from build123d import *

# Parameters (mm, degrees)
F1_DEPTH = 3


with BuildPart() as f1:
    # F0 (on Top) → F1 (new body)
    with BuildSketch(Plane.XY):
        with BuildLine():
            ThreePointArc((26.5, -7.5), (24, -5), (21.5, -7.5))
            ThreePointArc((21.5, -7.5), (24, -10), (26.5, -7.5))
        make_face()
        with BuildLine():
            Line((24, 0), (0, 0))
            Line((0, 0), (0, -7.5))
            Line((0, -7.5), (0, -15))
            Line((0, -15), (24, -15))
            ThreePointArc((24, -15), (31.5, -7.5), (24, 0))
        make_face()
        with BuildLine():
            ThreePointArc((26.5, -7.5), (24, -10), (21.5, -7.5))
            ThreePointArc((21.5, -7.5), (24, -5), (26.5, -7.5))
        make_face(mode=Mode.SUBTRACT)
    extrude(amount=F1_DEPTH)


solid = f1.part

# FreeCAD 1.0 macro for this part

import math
import FreeCAD as App
import Part
import Sketcher
Q = App.Units.Quantity

doc = App.newDocument("Part")
params = doc.addObject("Spreadsheet::Sheet", "Params")
for row, (alias, value) in enumerate([
    ("sketch1_diameter", "5 mm"),
    ("sketch1_radius", "7.5 mm"),
    ("sketch1_width", "24 mm"),
    ("pad1_length", "3 mm"),
], start=1):
    params.set(f"A{row}", alias)
    params.set(f"B{row}", "=" + value)
    params.setAlias(f"B{row}", alias)

body = doc.addObject("PartDesign::Body", "Body")

# Sketch on XY plane
sketch1 = body.newObject("Sketcher::SketchObject", "Sketch")
sketch1.AttachmentSupport = (doc.getObject("XY_Plane"), [""])
sketch1.MapMode = "FlatFace"
sketch1.addGeometry(Part.LineSegment(App.Vector(24, 0, 0), App.Vector(0, 0, 0)), False)
sketch1.addGeometry(Part.LineSegment(App.Vector(0, 0, 0), App.Vector(0, -15, 0)), False)
sketch1.addGeometry(Part.LineSegment(App.Vector(0, -15, 0), App.Vector(24, -15, 0)), False)
sketch1.addGeometry(Part.ArcOfCircle(Part.Circle(App.Vector(24, -7.5, 0), App.Vector(0, 0, 1), 7.5), math.radians(-90), math.radians(90)), False)
sketch1.addGeometry(Part.Circle(App.Vector(24, -7.5, 0), App.Vector(0, 0, 1), 2.5), False)
sketch1.addConstraint(Sketcher.Constraint("Coincident", 0, 2, 1, 1))
sketch1.addConstraint(Sketcher.Constraint("Coincident", 1, 2, 2, 1))
sketch1.addConstraint(Sketcher.Constraint("Tangent", 2, 2, 3, 1))
sketch1.addConstraint(Sketcher.Constraint("Tangent", 3, 2, 0, 1))
sketch1.addConstraint(Sketcher.Constraint("Horizontal", 0))
sketch1.addConstraint(Sketcher.Constraint("Vertical", 1))
sketch1.addConstraint(Sketcher.Constraint("Horizontal", 2))
sketch1.addConstraint(Sketcher.Constraint("Coincident", 0, 2, -1, 1))
sketch1.addConstraint(Sketcher.Constraint("Coincident", 4, 3, 3, 3))
sketch1.addConstraint(Sketcher.Constraint("Diameter", 4, Q("5 mm")))
sketch1.addConstraint(Sketcher.Constraint("Radius", 3, Q("7.5 mm")))
sketch1.addConstraint(Sketcher.Constraint("DistanceX", 0, 2, 0, 1, Q("24 mm")))
sketch1.setExpression("Constraints[9]", "Params.sketch1_diameter")
sketch1.setExpression("Constraints[10]", "Params.sketch1_radius")
sketch1.setExpression("Constraints[11]", "Params.sketch1_width")
pad1 = body.newObject("PartDesign::Pad", "Pad")
pad1.Profile = sketch1
pad1.setExpression("Length", "Params.pad1_length")

doc.recompute()
